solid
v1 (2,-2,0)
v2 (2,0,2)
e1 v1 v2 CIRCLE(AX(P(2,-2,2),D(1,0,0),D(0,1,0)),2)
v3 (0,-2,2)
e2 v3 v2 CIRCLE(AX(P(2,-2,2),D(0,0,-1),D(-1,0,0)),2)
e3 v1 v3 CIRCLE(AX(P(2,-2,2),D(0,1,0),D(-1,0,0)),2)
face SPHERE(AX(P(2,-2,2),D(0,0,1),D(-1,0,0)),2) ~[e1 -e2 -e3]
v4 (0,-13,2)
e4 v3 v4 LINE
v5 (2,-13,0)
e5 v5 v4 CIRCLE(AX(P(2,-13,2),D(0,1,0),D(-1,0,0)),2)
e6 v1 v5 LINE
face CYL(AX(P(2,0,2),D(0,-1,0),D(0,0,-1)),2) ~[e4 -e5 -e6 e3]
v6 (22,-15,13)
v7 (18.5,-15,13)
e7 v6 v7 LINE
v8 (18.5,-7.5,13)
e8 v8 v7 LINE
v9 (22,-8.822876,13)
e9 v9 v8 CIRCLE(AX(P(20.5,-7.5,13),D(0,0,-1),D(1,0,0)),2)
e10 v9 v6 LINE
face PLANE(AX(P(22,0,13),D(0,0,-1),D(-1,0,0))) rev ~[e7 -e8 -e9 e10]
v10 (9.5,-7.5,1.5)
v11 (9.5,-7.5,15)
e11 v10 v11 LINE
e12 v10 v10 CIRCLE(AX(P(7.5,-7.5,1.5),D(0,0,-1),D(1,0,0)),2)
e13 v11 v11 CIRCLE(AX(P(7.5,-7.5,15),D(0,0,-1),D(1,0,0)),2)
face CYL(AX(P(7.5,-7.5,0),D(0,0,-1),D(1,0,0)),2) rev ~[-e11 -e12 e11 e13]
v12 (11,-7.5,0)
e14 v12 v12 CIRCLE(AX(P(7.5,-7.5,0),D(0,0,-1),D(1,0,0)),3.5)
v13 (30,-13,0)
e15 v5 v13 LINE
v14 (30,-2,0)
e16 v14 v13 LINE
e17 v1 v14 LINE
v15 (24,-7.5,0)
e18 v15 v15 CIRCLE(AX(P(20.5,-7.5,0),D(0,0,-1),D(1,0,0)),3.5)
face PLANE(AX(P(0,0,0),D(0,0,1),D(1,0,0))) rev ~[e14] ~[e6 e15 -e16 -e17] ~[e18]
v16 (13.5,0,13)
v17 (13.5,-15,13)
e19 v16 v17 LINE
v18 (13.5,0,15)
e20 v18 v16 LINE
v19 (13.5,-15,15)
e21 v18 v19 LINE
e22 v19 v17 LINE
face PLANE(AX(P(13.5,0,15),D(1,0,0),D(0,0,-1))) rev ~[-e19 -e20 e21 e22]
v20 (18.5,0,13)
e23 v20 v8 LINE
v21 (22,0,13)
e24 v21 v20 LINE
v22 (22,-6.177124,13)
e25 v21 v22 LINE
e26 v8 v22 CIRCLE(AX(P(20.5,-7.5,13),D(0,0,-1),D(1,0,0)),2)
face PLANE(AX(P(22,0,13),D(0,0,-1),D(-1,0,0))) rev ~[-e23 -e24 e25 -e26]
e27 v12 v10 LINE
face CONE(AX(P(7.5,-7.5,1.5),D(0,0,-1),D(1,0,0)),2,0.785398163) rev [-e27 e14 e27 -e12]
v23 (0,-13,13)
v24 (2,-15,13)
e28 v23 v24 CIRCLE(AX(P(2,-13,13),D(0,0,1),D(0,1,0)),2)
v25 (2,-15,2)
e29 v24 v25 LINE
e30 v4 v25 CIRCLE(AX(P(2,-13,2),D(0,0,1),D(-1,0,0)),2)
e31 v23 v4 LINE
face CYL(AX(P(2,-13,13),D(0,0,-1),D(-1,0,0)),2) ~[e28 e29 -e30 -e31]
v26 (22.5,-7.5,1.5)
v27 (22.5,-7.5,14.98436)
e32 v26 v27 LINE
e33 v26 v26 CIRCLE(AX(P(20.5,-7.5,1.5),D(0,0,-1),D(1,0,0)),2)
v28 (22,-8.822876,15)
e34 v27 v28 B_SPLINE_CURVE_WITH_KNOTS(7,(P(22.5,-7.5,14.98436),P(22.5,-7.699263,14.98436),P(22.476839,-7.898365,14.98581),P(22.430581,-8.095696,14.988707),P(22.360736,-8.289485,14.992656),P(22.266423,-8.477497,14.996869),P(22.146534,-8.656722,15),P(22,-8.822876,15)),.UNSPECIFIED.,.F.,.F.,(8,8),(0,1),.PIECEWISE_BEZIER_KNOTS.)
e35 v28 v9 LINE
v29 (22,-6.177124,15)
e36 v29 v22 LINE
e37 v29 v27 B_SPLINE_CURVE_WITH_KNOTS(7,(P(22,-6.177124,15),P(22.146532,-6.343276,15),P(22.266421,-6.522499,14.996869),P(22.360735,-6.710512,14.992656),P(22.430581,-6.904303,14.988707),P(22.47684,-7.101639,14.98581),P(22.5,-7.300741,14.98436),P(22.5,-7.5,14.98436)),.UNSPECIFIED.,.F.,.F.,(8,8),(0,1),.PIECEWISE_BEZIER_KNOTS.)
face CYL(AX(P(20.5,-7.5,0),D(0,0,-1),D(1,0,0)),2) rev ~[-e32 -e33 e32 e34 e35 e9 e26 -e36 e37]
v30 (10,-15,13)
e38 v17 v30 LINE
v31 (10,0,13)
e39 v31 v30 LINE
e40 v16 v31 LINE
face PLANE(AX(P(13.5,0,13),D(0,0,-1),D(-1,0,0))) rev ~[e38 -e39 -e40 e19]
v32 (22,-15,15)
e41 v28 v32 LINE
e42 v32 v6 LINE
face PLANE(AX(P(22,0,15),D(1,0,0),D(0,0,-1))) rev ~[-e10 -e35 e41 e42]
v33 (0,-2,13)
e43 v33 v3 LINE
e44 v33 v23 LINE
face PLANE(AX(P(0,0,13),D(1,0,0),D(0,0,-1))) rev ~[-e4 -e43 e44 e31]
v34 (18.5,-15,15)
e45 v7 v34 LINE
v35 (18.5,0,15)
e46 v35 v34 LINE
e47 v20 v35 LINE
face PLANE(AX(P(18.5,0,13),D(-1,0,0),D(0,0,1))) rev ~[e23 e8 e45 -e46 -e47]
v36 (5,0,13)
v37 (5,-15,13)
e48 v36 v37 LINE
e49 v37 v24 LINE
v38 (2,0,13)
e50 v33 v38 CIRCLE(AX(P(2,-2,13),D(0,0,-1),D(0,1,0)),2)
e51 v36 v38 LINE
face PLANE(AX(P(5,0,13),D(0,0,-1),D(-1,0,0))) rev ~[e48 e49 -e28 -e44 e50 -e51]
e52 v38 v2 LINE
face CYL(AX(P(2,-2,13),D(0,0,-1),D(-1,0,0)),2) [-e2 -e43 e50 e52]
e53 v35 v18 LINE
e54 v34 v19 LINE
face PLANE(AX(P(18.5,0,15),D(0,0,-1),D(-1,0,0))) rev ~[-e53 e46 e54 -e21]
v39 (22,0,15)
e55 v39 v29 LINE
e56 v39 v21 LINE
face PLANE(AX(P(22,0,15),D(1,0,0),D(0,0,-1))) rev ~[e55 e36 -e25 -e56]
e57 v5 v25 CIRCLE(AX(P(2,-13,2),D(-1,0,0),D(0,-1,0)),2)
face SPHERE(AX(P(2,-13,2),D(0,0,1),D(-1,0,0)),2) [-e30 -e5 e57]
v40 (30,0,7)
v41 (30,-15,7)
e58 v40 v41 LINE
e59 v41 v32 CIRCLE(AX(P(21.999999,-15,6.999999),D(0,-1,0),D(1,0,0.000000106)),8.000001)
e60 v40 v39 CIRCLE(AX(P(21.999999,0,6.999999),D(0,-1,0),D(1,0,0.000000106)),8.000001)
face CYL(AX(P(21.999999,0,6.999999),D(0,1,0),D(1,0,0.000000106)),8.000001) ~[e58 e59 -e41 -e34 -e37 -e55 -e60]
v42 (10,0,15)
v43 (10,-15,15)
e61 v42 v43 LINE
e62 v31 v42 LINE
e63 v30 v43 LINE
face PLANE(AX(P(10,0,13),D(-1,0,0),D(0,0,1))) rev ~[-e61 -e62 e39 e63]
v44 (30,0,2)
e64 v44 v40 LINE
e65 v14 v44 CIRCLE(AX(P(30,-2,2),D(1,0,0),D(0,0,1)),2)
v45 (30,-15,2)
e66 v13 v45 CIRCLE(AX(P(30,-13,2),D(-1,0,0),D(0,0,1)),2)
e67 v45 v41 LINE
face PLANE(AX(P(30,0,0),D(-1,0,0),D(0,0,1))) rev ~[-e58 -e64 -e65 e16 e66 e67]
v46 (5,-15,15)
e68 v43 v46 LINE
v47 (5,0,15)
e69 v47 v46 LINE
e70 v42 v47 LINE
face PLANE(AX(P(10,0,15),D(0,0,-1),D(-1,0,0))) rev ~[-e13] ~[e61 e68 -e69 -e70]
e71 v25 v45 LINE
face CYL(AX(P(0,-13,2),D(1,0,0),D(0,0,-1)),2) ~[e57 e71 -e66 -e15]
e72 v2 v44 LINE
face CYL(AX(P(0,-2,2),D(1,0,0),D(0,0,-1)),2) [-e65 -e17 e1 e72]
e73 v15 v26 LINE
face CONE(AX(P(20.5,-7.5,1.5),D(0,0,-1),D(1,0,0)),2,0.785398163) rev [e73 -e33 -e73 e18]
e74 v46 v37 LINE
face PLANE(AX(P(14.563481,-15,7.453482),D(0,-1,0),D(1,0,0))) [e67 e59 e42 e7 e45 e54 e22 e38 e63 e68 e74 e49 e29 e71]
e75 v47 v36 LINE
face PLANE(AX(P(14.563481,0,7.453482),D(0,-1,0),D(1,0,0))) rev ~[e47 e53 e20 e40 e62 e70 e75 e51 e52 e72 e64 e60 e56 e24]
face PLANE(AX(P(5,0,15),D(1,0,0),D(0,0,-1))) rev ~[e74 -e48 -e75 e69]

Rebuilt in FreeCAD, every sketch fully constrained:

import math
import FreeCAD as App
import Part
import Sketcher
Q = App.Units.Quantity


def edges_at(feature, points):
    """Names of the edges that pass closest to the given points."""
    edges = feature.Shape.Edges
    near = lambda p: min(range(len(edges)), key=lambda i: edges[i].distToShape(Part.Vertex(*p))[0])
    return sorted({f"Edge{near(p) + 1}" for p in points})

doc = App.newDocument("Part")
body = doc.addObject("PartDesign::Body", "Body")

sketch1 = body.newObject("Sketcher::SketchObject", "Sketch")
sketch1.AttachmentSupport = (doc.getObject("XZ_Plane"), [""])
sketch1.MapMode = "FlatFace"
sketch1.addGeometry(Part.LineSegment(App.Vector(0, 0, 0), App.Vector(30, 0, 0)), False)
sketch1.addGeometry(Part.LineSegment(App.Vector(30, 0, 0), App.Vector(30, 7, 0)), False)
sketch1.addGeometry(Part.ArcOfCircle(Part.Circle(App.Vector(21.999999, 6.999999, 0), App.Vector(0, 0, 1), 8.000001), math.radians(0.000006), math.radians(89.999994)), False)
sketch1.addGeometry(Part.LineSegment(App.Vector(22, 15, 0), App.Vector(22, 13, 0)), False)
sketch1.addGeometry(Part.LineSegment(App.Vector(22, 13, 0), App.Vector(18.5, 13, 0)), False)
sketch1.addGeometry(Part.LineSegment(App.Vector(18.5, 13, 0), App.Vector(18.5, 15, 0)), False)
sketch1.addGeometry(Part.LineSegment(App.Vector(18.5, 15, 0), App.Vector(13.5, 15, 0)), False)
sketch1.addGeometry(Part.LineSegment(App.Vector(13.5, 15, 0), App.Vector(13.5, 13, 0)), False)
sketch1.addGeometry(Part.LineSegment(App.Vector(13.5, 13, 0), App.Vector(10, 13, 0)), False)
sketch1.addGeometry(Part.LineSegment(App.Vector(10, 13, 0), App.Vector(10, 15, 0)), False)
sketch1.addGeometry(Part.LineSegment(App.Vector(10, 15, 0), App.Vector(5, 15, 0)), False)
sketch1.addGeometry(Part.LineSegment(App.Vector(5, 15, 0), App.Vector(5, 13, 0)), False)
sketch1.addGeometry(Part.LineSegment(App.Vector(5, 13, 0), App.Vector(0, 13, 0)), False)
sketch1.addGeometry(Part.LineSegment(App.Vector(0, 13, 0), App.Vector(0, 0, 0)), False)
sketch1.addConstraint(Sketcher.Constraint("Coincident", 0, 2, 1, 1))
sketch1.addConstraint(Sketcher.Constraint("Tangent", 1, 2, 2, 1))
sketch1.addConstraint(Sketcher.Constraint("Coincident", 2, 2, 3, 1))
sketch1.addConstraint(Sketcher.Constraint("Coincident", 3, 2, 4, 1))
sketch1.addConstraint(Sketcher.Constraint("Coincident", 4, 2, 5, 1))
sketch1.addConstraint(Sketcher.Constraint("Coincident", 5, 2, 6, 1))
sketch1.addConstraint(Sketcher.Constraint("Coincident", 6, 2, 7, 1))
sketch1.addConstraint(Sketcher.Constraint("Coincident", 7, 2, 8, 1))
sketch1.addConstraint(Sketcher.Constraint("Coincident", 8, 2, 9, 1))
sketch1.addConstraint(Sketcher.Constraint("Coincident", 9, 2, 10, 1))
sketch1.addConstraint(Sketcher.Constraint("Coincident", 10, 2, 11, 1))
sketch1.addConstraint(Sketcher.Constraint("Coincident", 11, 2, 12, 1))
sketch1.addConstraint(Sketcher.Constraint("Coincident", 12, 2, 13, 1))
sketch1.addConstraint(Sketcher.Constraint("Coincident", 13, 2, 0, 1))
sketch1.addConstraint(Sketcher.Constraint("Horizontal", 0))
sketch1.addConstraint(Sketcher.Constraint("Vertical", 1))
sketch1.addConstraint(Sketcher.Constraint("Vertical", 3))
sketch1.addConstraint(Sketcher.Constraint("Horizontal", 4))
sketch1.addConstraint(Sketcher.Constraint("Vertical", 5))
sketch1.addConstraint(Sketcher.Constraint("Horizontal", 6))
sketch1.addConstraint(Sketcher.Constraint("Vertical", 7))
sketch1.addConstraint(Sketcher.Constraint("Horizontal", 8))
sketch1.addConstraint(Sketcher.Constraint("Vertical", 9))
sketch1.addConstraint(Sketcher.Constraint("Horizontal", 10))
sketch1.addConstraint(Sketcher.Constraint("Vertical", 11))
sketch1.addConstraint(Sketcher.Constraint("Horizontal", 12))
sketch1.addConstraint(Sketcher.Constraint("Vertical", 13))
sketch1.addConstraint(Sketcher.Constraint("Coincident", 13, 2, -1, 1))
sketch1.addConstraint(Sketcher.Constraint("Horizontal", 2, 2, 5, 2))
sketch1.addConstraint(Sketcher.Constraint("Horizontal", 4, 2, 7, 2))
sketch1.addConstraint(Sketcher.Constraint("Horizontal", 6, 2, 9, 2))
sketch1.addConstraint(Sketcher.Constraint("Horizontal", 8, 2, 11, 2))
sketch1.addConstraint(Sketcher.Constraint("Equal", 4, 8))
sketch1.addConstraint(Sketcher.Constraint("Equal", 6, 10))
sketch1.addConstraint(Sketcher.Constraint("Equal", 10, 12))
sketch1.addConstraint(Sketcher.Constraint("Radius", 2, Q("8.000001 mm")))
sketch1.addConstraint(Sketcher.Constraint("DistanceX", 0, 1, 0, 2, Q("30 mm")))
sketch1.addConstraint(Sketcher.Constraint("DistanceX", 6, 2, 6, 1, Q("5 mm")))
sketch1.addConstraint(Sketcher.Constraint("DistanceY", 1, 1, 1, 2, Q("7 mm")))
sketch1.addConstraint(Sketcher.Constraint("DistanceY", 3, 2, 3, 1, Q("2 mm")))
sketch1.addConstraint(Sketcher.Constraint("DistanceX", 4, 2, 4, 1, Q("3.5 mm")))
pad1 = body.newObject("PartDesign::Pad", "Pad")
pad1.Profile = sketch1
pad1.Length = 15

sketch2 = body.newObject("Sketcher::SketchObject", "Sketch001")
sketch2.AttachmentSupport = (doc.getObject("XY_Plane"), [""])
sketch2.MapMode = "FlatFace"
sketch2.addGeometry(Part.Circle(App.Vector(7.5, -7.5, 0), App.Vector(0, 0, 1), 2), False)
sketch2.addGeometry(Part.Circle(App.Vector(20.5, -7.5, 0), App.Vector(0, 0, 1), 2), False)
sketch2.addConstraint(Sketcher.Constraint("Equal", 0, 1))
sketch2.addConstraint(Sketcher.Constraint("Horizontal", 0, 3, 1, 3))
sketch2.addConstraint(Sketcher.Constraint("Diameter", 0, Q("4 mm")))
sketch2.addConstraint(Sketcher.Constraint("DistanceX", 0, 3, 1, 3, Q("13 mm")))
sketch2.addConstraint(Sketcher.Constraint("DistanceX", -1, 1, 0, 3, Q("7.5 mm")))
sketch2.addConstraint(Sketcher.Constraint("DistanceY", 0, 3, -1, 1, Q("7.5 mm")))
pocket1 = body.newObject("PartDesign::Pocket", "Pocket")
pocket1.Profile = sketch2
pocket1.Length = 15
pocket1.Reversed = True
doc.recompute()

chamfer = body.newObject("PartDesign::Chamfer", "Chamfer")
chamfer.Base = (pocket1, edges_at(pocket1, [(5.5, -7.5, 0), (18.5, -7.5, 0)]))
chamfer.Size = 1.5
doc.recompute()

fillet = body.newObject("PartDesign::Fillet", "Fillet")
fillet.Base = (chamfer, edges_at(chamfer, [
    (0, -15, 6.5),
    (0, 0, 6.5),
    (0, -7.5, 0),
    (15, -15, 0),
    (15, 0, 0),
]))
fillet.Radius = 2

doc.recompute()
